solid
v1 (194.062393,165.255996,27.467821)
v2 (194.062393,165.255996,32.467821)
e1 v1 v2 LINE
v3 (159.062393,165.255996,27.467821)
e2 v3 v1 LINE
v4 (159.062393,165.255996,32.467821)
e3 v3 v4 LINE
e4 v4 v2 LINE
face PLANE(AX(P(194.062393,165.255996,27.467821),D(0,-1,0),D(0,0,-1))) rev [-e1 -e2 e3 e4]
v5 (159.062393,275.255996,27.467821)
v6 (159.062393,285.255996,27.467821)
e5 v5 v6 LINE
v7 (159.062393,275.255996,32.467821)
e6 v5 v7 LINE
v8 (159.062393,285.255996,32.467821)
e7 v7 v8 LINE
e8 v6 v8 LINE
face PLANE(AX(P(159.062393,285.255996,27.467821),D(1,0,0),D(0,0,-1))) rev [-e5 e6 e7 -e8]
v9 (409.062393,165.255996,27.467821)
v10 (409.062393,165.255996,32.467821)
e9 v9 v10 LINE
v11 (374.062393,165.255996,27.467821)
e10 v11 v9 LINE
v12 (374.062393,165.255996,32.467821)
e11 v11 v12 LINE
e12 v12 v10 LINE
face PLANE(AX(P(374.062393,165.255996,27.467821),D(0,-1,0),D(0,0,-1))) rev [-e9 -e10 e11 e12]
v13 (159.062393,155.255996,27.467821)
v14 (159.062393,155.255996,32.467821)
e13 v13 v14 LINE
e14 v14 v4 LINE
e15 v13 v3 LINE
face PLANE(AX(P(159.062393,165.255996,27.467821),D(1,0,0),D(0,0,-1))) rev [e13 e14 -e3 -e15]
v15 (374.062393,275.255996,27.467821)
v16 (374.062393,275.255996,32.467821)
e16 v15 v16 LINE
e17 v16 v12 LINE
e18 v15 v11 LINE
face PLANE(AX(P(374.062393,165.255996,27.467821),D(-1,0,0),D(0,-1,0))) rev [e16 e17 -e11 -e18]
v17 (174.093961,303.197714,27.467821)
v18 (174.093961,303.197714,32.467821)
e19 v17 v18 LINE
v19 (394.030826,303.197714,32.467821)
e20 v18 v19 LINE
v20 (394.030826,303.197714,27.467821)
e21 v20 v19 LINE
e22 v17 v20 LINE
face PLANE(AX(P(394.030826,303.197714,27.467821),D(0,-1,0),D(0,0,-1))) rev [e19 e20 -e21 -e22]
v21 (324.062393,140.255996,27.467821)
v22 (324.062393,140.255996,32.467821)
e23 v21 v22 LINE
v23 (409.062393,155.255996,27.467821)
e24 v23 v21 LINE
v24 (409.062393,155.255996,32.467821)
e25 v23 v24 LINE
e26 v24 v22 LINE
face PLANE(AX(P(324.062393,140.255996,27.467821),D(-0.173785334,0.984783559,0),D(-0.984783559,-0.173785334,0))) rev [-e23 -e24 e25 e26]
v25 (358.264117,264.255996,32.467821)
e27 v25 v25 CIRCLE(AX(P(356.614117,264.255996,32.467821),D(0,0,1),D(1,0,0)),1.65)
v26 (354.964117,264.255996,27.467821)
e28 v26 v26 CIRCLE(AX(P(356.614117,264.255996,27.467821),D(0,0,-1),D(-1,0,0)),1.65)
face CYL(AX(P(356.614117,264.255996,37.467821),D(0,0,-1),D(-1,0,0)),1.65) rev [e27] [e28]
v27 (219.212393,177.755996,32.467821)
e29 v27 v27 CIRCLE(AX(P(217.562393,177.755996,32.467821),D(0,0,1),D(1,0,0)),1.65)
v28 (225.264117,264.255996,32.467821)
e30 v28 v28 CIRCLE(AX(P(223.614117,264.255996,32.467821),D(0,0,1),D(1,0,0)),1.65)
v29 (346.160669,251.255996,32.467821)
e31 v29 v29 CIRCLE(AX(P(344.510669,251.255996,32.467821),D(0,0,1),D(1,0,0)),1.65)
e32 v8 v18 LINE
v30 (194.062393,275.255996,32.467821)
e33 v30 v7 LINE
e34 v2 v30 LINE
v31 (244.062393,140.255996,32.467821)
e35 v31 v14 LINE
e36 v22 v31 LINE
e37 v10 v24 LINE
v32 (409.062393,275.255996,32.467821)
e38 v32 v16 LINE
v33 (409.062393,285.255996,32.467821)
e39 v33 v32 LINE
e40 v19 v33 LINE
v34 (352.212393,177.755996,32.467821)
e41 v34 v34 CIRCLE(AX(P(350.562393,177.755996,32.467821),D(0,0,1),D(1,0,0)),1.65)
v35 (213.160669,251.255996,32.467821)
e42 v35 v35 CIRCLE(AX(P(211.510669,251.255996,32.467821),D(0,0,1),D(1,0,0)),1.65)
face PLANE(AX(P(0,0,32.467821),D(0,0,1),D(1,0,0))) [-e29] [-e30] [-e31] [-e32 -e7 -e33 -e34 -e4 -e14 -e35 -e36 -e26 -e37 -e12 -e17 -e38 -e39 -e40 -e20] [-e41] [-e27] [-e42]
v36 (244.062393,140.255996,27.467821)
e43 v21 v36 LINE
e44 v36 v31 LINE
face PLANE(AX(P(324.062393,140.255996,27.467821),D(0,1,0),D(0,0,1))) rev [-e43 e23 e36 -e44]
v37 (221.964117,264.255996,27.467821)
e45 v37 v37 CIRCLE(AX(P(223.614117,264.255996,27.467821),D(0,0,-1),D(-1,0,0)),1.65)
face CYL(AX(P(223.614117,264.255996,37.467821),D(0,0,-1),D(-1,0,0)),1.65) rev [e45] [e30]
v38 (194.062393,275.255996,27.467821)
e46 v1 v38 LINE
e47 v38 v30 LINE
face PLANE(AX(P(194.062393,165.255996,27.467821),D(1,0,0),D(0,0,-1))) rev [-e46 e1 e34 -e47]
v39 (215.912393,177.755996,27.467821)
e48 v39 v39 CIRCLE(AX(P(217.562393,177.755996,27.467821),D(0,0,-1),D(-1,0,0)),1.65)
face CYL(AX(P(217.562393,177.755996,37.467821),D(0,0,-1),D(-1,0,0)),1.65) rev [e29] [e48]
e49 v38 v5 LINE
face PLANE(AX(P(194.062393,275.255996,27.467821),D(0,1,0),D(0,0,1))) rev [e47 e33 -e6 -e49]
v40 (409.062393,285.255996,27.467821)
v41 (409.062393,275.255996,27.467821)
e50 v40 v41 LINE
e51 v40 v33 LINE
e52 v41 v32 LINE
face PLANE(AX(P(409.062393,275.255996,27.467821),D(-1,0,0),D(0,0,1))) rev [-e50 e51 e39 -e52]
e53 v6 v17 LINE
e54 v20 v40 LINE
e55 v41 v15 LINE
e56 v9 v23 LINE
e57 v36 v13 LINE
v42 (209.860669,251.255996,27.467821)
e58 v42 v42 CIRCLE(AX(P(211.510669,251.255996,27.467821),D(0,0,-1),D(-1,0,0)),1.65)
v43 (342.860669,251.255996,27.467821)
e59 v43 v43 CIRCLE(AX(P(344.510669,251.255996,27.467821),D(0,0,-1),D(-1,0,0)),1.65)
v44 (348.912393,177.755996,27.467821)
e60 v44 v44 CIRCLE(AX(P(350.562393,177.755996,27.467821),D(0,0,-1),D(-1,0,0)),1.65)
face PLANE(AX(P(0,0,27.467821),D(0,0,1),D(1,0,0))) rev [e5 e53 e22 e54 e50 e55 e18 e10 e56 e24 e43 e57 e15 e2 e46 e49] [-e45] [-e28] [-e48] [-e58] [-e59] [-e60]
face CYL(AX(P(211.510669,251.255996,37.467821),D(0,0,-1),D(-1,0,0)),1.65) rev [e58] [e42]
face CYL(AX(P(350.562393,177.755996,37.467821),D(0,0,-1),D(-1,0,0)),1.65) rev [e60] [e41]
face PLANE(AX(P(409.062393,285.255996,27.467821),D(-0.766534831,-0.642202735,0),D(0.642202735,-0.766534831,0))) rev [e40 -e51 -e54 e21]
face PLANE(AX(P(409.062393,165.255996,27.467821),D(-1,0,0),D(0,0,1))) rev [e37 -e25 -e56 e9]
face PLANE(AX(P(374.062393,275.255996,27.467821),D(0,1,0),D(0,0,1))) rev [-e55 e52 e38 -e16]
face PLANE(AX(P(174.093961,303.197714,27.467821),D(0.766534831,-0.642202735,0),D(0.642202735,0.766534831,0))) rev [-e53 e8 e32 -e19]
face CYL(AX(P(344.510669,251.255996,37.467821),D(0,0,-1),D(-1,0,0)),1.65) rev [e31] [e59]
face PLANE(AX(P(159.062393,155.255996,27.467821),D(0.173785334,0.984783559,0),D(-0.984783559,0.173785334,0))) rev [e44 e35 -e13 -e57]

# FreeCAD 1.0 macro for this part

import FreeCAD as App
import Part
import Sketcher

doc = App.newDocument("Part")
body = doc.addObject("PartDesign::Body", "Body")

sketch1 = body.newObject("Sketcher::SketchObject", "Sketch")
sketch1.AttachmentSupport = (doc.getObject("XY_Plane"), [""])
sketch1.MapMode = "FlatFace"
sketch1.AttachmentOffset = App.Placement(App.Vector(0, 0, 32.467821), App.Rotation())
sketch1.addGeometry(Part.LineSegment(App.Vector(194, 165, 0), App.Vector(194, 275, 0)), False)
sketch1.addGeometry(Part.LineSegment(App.Vector(194, 275, 0), App.Vector(159, 275, 0)), False)
sketch1.addGeometry(Part.LineSegment(App.Vector(159, 275, 0), App.Vector(159, 285, 0)), False)
sketch1.addGeometry(Part.LineSegment(App.Vector(159, 285, 0), App.Vector(174, 303, 0)), False)
sketch1.addGeometry(Part.LineSegment(App.Vector(174, 303, 0), App.Vector(394, 303, 0)), False)
sketch1.addGeometry(Part.LineSegment(App.Vector(394, 303, 0), App.Vector(409, 285, 0)), False)
sketch1.addGeometry(Part.LineSegment(App.Vector(409, 285, 0), App.Vector(409, 275, 0)), False)
sketch1.addGeometry(Part.LineSegment(App.Vector(409, 275, 0), App.Vector(374, 275, 0)), False)
sketch1.addGeometry(Part.LineSegment(App.Vector(374, 275, 0), App.Vector(374, 165, 0)), False)
sketch1.addGeometry(Part.LineSegment(App.Vector(374, 165, 0), App.Vector(409, 165, 0)), False)
sketch1.addGeometry(Part.LineSegment(App.Vector(409, 165, 0), App.Vector(409, 155, 0)), False)
sketch1.addGeometry(Part.LineSegment(App.Vector(409, 155, 0), App.Vector(324, 140, 0)), False)
sketch1.addGeometry(Part.LineSegment(App.Vector(324, 140, 0), App.Vector(244, 140, 0)), False)
sketch1.addGeometry(Part.LineSegment(App.Vector(244, 140, 0), App.Vector(159, 155, 0)), False)
sketch1.addGeometry(Part.LineSegment(App.Vector(159, 155, 0), App.Vector(159, 165, 0)), False)
sketch1.addGeometry(Part.LineSegment(App.Vector(159, 165, 0), App.Vector(194, 165, 0)), False)
sketch1.addConstraint(Sketcher.Constraint("Coincident", 0, 2, 1, 1))
sketch1.addConstraint(Sketcher.Constraint("Coincident", 1, 2, 2, 1))
sketch1.addConstraint(Sketcher.Constraint("Coincident", 2, 2, 3, 1))
sketch1.addConstraint(Sketcher.Constraint("Coincident", 3, 2, 4, 1))
sketch1.addConstraint(Sketcher.Constraint("Coincident", 4, 2, 5, 1))
sketch1.addConstraint(Sketcher.Constraint("Coincident", 5, 2, 6, 1))
sketch1.addConstraint(Sketcher.Constraint("Coincident", 6, 2, 7, 1))
sketch1.addConstraint(Sketcher.Constraint("Coincident", 7, 2, 8, 1))
sketch1.addConstraint(Sketcher.Constraint("Coincident", 8, 2, 9, 1))
sketch1.addConstraint(Sketcher.Constraint("Coincident", 9, 2, 10, 1))
sketch1.addConstraint(Sketcher.Constraint("Coincident", 10, 2, 11, 1))
sketch1.addConstraint(Sketcher.Constraint("Coincident", 11, 2, 12, 1))
sketch1.addConstraint(Sketcher.Constraint("Coincident", 12, 2, 13, 1))
sketch1.addConstraint(Sketcher.Constraint("Coincident", 13, 2, 14, 1))
sketch1.addConstraint(Sketcher.Constraint("Coincident", 14, 2, 15, 1))
sketch1.addConstraint(Sketcher.Constraint("Coincident", 15, 2, 0, 1))
sketch1.addConstraint(Sketcher.Constraint("Vertical", 0))
sketch1.addConstraint(Sketcher.Constraint("Horizontal", 1))
sketch1.addConstraint(Sketcher.Constraint("Vertical", 2))
sketch1.addConstraint(Sketcher.Constraint("Horizontal", 4))
sketch1.addConstraint(Sketcher.Constraint("Vertical", 6))
sketch1.addConstraint(Sketcher.Constraint("Horizontal", 7))
sketch1.addConstraint(Sketcher.Constraint("Vertical", 8))
sketch1.addConstraint(Sketcher.Constraint("Horizontal", 9))
sketch1.addConstraint(Sketcher.Constraint("Vertical", 10))
sketch1.addConstraint(Sketcher.Constraint("Horizontal", 12))
sketch1.addConstraint(Sketcher.Constraint("Vertical", 14))
sketch1.addConstraint(Sketcher.Constraint("Horizontal", 15))
sketch1.addConstraint(Sketcher.Constraint("Horizontal", 2, 2, 5, 2))
sketch1.addConstraint(Sketcher.Constraint("Horizontal", 1, 2, 6, 2))
sketch1.addConstraint(Sketcher.Constraint("Horizontal", 10, 2, 13, 2))
sketch1.addConstraint(Sketcher.Constraint("Horizontal", 9, 2, 14, 2))
sketch1.addConstraint(Sketcher.Constraint("Vertical", 6, 2, 9, 2))
sketch1.addConstraint(Sketcher.Constraint("Vertical", 2, 2, 13, 2))
sketch1.addConstraint(Sketcher.Constraint("Equal", 1, 7))
sketch1.addConstraint(Sketcher.Constraint("Equal", 6, 10))
sketch1.addConstraint(Sketcher.Constraint("Equal", 3, 5))
sketch1.addConstraint(Sketcher.Constraint("Equal", 11, 13))
sketch1.addConstraint(Sketcher.Constraint("DistanceX", 1, 2, 1, 1, 35.0))
sketch1.addConstraint(Sketcher.Constraint("DistanceX", 12, 2, 12, 1, 80.0))
sketch1.addConstraint(Sketcher.Constraint("DistanceY", 0, 1, 0, 2, 110.0))
sketch1.addConstraint(Sketcher.Constraint("DistanceY", 2, 1, 2, 2, 10.0))
sketch1.addConstraint(Sketcher.Constraint("DistanceX", 0, 2, 5, 2, 215.0))
sketch1.addConstraint(Sketcher.Constraint("DistanceY", 11, 2, 8, 2, 25.0))
sketch1.addConstraint(Sketcher.Constraint("DistanceX", 4, 1, 4, 2, 219.936865))
sketch1.addConstraint(Sketcher.Constraint("DistanceX", -1, 1, 3, 2, 174.093961))
sketch1.addConstraint(Sketcher.Constraint("Distance", 3, 23.406265))
sketch1.addConstraint(Sketcher.Constraint("DistanceY", -1, 1, 0, 2, 275.255996))
pad1 = body.newObject("PartDesign::Pad", "Pad")
pad1.Profile = sketch1
pad1.Length = 5
pad1.Reversed = True

sketch2 = body.newObject("Sketcher::SketchObject", "Sketch001")
sketch2.AttachmentSupport = (doc.getObject("XY_Plane"), [""])
sketch2.MapMode = "FlatFace"
sketch2.AttachmentOffset = App.Placement(App.Vector(0, 0, 27.467821), App.Rotation())
sketch2.addGeometry(Part.Circle(App.Vector(217.6, 177.8, 0), App.Vector(0, 0, 1), 1.6), False)
sketch2.addGeometry(Part.Circle(App.Vector(350.6, 177.8, 0), App.Vector(0, 0, 1), 1.6), False)
sketch2.addGeometry(Part.Circle(App.Vector(356.6, 264.3, 0), App.Vector(0, 0, 1), 1.6), False)
sketch2.addGeometry(Part.Circle(App.Vector(344.5, 251.3, 0), App.Vector(0, 0, 1), 1.6), False)
sketch2.addGeometry(Part.Circle(App.Vector(211.5, 251.3, 0), App.Vector(0, 0, 1), 1.6), False)
sketch2.addGeometry(Part.Circle(App.Vector(223.6, 264.3, 0), App.Vector(0, 0, 1), 1.6), False)
sketch2.addConstraint(Sketcher.Constraint("Equal", 0, 1))
sketch2.addConstraint(Sketcher.Constraint("Equal", 1, 2))
sketch2.addConstraint(Sketcher.Constraint("Equal", 2, 3))
sketch2.addConstraint(Sketcher.Constraint("Equal", 3, 4))
sketch2.addConstraint(Sketcher.Constraint("Equal", 4, 5))
sketch2.addConstraint(Sketcher.Constraint("Horizontal", 0, 3, 1, 3))
sketch2.addConstraint(Sketcher.Constraint("Horizontal", 3, 3, 4, 3))
sketch2.addConstraint(Sketcher.Constraint("Horizontal", 2, 3, 5, 3))
sketch2.addConstraint(Sketcher.Constraint("Diameter", 0, 3.3))
sketch2.addConstraint(Sketcher.Constraint("DistanceX", 0, 3, 1, 3, 133.0))
sketch2.addConstraint(Sketcher.Constraint("DistanceY", 3, 3, 2, 3, 13.0))
sketch2.addConstraint(Sketcher.Constraint("DistanceX", 4, 3, 3, 3, 133.0))
sketch2.addConstraint(Sketcher.Constraint("DistanceX", 5, 3, 2, 3, 133.0))
sketch2.addConstraint(Sketcher.Constraint("DistanceY", 1, 3, 2, 3, 86.5))
sketch2.addConstraint(Sketcher.Constraint("DistanceX", -1, 1, 3, 3, 344.510669))
sketch2.addConstraint(Sketcher.Constraint("DistanceX", 3, 3, 2, 3, 12.103448))
sketch2.addConstraint(Sketcher.Constraint("DistanceX", -1, 1, 0, 3, 217.562393))
sketch2.addConstraint(Sketcher.Constraint("DistanceY", -1, 1, 0, 3, 177.755996))
pocket1 = body.newObject("PartDesign::Pocket", "Pocket")
pocket1.Profile = sketch2
pocket1.Length = 10
pocket1.Reversed = True

doc.recompute()
